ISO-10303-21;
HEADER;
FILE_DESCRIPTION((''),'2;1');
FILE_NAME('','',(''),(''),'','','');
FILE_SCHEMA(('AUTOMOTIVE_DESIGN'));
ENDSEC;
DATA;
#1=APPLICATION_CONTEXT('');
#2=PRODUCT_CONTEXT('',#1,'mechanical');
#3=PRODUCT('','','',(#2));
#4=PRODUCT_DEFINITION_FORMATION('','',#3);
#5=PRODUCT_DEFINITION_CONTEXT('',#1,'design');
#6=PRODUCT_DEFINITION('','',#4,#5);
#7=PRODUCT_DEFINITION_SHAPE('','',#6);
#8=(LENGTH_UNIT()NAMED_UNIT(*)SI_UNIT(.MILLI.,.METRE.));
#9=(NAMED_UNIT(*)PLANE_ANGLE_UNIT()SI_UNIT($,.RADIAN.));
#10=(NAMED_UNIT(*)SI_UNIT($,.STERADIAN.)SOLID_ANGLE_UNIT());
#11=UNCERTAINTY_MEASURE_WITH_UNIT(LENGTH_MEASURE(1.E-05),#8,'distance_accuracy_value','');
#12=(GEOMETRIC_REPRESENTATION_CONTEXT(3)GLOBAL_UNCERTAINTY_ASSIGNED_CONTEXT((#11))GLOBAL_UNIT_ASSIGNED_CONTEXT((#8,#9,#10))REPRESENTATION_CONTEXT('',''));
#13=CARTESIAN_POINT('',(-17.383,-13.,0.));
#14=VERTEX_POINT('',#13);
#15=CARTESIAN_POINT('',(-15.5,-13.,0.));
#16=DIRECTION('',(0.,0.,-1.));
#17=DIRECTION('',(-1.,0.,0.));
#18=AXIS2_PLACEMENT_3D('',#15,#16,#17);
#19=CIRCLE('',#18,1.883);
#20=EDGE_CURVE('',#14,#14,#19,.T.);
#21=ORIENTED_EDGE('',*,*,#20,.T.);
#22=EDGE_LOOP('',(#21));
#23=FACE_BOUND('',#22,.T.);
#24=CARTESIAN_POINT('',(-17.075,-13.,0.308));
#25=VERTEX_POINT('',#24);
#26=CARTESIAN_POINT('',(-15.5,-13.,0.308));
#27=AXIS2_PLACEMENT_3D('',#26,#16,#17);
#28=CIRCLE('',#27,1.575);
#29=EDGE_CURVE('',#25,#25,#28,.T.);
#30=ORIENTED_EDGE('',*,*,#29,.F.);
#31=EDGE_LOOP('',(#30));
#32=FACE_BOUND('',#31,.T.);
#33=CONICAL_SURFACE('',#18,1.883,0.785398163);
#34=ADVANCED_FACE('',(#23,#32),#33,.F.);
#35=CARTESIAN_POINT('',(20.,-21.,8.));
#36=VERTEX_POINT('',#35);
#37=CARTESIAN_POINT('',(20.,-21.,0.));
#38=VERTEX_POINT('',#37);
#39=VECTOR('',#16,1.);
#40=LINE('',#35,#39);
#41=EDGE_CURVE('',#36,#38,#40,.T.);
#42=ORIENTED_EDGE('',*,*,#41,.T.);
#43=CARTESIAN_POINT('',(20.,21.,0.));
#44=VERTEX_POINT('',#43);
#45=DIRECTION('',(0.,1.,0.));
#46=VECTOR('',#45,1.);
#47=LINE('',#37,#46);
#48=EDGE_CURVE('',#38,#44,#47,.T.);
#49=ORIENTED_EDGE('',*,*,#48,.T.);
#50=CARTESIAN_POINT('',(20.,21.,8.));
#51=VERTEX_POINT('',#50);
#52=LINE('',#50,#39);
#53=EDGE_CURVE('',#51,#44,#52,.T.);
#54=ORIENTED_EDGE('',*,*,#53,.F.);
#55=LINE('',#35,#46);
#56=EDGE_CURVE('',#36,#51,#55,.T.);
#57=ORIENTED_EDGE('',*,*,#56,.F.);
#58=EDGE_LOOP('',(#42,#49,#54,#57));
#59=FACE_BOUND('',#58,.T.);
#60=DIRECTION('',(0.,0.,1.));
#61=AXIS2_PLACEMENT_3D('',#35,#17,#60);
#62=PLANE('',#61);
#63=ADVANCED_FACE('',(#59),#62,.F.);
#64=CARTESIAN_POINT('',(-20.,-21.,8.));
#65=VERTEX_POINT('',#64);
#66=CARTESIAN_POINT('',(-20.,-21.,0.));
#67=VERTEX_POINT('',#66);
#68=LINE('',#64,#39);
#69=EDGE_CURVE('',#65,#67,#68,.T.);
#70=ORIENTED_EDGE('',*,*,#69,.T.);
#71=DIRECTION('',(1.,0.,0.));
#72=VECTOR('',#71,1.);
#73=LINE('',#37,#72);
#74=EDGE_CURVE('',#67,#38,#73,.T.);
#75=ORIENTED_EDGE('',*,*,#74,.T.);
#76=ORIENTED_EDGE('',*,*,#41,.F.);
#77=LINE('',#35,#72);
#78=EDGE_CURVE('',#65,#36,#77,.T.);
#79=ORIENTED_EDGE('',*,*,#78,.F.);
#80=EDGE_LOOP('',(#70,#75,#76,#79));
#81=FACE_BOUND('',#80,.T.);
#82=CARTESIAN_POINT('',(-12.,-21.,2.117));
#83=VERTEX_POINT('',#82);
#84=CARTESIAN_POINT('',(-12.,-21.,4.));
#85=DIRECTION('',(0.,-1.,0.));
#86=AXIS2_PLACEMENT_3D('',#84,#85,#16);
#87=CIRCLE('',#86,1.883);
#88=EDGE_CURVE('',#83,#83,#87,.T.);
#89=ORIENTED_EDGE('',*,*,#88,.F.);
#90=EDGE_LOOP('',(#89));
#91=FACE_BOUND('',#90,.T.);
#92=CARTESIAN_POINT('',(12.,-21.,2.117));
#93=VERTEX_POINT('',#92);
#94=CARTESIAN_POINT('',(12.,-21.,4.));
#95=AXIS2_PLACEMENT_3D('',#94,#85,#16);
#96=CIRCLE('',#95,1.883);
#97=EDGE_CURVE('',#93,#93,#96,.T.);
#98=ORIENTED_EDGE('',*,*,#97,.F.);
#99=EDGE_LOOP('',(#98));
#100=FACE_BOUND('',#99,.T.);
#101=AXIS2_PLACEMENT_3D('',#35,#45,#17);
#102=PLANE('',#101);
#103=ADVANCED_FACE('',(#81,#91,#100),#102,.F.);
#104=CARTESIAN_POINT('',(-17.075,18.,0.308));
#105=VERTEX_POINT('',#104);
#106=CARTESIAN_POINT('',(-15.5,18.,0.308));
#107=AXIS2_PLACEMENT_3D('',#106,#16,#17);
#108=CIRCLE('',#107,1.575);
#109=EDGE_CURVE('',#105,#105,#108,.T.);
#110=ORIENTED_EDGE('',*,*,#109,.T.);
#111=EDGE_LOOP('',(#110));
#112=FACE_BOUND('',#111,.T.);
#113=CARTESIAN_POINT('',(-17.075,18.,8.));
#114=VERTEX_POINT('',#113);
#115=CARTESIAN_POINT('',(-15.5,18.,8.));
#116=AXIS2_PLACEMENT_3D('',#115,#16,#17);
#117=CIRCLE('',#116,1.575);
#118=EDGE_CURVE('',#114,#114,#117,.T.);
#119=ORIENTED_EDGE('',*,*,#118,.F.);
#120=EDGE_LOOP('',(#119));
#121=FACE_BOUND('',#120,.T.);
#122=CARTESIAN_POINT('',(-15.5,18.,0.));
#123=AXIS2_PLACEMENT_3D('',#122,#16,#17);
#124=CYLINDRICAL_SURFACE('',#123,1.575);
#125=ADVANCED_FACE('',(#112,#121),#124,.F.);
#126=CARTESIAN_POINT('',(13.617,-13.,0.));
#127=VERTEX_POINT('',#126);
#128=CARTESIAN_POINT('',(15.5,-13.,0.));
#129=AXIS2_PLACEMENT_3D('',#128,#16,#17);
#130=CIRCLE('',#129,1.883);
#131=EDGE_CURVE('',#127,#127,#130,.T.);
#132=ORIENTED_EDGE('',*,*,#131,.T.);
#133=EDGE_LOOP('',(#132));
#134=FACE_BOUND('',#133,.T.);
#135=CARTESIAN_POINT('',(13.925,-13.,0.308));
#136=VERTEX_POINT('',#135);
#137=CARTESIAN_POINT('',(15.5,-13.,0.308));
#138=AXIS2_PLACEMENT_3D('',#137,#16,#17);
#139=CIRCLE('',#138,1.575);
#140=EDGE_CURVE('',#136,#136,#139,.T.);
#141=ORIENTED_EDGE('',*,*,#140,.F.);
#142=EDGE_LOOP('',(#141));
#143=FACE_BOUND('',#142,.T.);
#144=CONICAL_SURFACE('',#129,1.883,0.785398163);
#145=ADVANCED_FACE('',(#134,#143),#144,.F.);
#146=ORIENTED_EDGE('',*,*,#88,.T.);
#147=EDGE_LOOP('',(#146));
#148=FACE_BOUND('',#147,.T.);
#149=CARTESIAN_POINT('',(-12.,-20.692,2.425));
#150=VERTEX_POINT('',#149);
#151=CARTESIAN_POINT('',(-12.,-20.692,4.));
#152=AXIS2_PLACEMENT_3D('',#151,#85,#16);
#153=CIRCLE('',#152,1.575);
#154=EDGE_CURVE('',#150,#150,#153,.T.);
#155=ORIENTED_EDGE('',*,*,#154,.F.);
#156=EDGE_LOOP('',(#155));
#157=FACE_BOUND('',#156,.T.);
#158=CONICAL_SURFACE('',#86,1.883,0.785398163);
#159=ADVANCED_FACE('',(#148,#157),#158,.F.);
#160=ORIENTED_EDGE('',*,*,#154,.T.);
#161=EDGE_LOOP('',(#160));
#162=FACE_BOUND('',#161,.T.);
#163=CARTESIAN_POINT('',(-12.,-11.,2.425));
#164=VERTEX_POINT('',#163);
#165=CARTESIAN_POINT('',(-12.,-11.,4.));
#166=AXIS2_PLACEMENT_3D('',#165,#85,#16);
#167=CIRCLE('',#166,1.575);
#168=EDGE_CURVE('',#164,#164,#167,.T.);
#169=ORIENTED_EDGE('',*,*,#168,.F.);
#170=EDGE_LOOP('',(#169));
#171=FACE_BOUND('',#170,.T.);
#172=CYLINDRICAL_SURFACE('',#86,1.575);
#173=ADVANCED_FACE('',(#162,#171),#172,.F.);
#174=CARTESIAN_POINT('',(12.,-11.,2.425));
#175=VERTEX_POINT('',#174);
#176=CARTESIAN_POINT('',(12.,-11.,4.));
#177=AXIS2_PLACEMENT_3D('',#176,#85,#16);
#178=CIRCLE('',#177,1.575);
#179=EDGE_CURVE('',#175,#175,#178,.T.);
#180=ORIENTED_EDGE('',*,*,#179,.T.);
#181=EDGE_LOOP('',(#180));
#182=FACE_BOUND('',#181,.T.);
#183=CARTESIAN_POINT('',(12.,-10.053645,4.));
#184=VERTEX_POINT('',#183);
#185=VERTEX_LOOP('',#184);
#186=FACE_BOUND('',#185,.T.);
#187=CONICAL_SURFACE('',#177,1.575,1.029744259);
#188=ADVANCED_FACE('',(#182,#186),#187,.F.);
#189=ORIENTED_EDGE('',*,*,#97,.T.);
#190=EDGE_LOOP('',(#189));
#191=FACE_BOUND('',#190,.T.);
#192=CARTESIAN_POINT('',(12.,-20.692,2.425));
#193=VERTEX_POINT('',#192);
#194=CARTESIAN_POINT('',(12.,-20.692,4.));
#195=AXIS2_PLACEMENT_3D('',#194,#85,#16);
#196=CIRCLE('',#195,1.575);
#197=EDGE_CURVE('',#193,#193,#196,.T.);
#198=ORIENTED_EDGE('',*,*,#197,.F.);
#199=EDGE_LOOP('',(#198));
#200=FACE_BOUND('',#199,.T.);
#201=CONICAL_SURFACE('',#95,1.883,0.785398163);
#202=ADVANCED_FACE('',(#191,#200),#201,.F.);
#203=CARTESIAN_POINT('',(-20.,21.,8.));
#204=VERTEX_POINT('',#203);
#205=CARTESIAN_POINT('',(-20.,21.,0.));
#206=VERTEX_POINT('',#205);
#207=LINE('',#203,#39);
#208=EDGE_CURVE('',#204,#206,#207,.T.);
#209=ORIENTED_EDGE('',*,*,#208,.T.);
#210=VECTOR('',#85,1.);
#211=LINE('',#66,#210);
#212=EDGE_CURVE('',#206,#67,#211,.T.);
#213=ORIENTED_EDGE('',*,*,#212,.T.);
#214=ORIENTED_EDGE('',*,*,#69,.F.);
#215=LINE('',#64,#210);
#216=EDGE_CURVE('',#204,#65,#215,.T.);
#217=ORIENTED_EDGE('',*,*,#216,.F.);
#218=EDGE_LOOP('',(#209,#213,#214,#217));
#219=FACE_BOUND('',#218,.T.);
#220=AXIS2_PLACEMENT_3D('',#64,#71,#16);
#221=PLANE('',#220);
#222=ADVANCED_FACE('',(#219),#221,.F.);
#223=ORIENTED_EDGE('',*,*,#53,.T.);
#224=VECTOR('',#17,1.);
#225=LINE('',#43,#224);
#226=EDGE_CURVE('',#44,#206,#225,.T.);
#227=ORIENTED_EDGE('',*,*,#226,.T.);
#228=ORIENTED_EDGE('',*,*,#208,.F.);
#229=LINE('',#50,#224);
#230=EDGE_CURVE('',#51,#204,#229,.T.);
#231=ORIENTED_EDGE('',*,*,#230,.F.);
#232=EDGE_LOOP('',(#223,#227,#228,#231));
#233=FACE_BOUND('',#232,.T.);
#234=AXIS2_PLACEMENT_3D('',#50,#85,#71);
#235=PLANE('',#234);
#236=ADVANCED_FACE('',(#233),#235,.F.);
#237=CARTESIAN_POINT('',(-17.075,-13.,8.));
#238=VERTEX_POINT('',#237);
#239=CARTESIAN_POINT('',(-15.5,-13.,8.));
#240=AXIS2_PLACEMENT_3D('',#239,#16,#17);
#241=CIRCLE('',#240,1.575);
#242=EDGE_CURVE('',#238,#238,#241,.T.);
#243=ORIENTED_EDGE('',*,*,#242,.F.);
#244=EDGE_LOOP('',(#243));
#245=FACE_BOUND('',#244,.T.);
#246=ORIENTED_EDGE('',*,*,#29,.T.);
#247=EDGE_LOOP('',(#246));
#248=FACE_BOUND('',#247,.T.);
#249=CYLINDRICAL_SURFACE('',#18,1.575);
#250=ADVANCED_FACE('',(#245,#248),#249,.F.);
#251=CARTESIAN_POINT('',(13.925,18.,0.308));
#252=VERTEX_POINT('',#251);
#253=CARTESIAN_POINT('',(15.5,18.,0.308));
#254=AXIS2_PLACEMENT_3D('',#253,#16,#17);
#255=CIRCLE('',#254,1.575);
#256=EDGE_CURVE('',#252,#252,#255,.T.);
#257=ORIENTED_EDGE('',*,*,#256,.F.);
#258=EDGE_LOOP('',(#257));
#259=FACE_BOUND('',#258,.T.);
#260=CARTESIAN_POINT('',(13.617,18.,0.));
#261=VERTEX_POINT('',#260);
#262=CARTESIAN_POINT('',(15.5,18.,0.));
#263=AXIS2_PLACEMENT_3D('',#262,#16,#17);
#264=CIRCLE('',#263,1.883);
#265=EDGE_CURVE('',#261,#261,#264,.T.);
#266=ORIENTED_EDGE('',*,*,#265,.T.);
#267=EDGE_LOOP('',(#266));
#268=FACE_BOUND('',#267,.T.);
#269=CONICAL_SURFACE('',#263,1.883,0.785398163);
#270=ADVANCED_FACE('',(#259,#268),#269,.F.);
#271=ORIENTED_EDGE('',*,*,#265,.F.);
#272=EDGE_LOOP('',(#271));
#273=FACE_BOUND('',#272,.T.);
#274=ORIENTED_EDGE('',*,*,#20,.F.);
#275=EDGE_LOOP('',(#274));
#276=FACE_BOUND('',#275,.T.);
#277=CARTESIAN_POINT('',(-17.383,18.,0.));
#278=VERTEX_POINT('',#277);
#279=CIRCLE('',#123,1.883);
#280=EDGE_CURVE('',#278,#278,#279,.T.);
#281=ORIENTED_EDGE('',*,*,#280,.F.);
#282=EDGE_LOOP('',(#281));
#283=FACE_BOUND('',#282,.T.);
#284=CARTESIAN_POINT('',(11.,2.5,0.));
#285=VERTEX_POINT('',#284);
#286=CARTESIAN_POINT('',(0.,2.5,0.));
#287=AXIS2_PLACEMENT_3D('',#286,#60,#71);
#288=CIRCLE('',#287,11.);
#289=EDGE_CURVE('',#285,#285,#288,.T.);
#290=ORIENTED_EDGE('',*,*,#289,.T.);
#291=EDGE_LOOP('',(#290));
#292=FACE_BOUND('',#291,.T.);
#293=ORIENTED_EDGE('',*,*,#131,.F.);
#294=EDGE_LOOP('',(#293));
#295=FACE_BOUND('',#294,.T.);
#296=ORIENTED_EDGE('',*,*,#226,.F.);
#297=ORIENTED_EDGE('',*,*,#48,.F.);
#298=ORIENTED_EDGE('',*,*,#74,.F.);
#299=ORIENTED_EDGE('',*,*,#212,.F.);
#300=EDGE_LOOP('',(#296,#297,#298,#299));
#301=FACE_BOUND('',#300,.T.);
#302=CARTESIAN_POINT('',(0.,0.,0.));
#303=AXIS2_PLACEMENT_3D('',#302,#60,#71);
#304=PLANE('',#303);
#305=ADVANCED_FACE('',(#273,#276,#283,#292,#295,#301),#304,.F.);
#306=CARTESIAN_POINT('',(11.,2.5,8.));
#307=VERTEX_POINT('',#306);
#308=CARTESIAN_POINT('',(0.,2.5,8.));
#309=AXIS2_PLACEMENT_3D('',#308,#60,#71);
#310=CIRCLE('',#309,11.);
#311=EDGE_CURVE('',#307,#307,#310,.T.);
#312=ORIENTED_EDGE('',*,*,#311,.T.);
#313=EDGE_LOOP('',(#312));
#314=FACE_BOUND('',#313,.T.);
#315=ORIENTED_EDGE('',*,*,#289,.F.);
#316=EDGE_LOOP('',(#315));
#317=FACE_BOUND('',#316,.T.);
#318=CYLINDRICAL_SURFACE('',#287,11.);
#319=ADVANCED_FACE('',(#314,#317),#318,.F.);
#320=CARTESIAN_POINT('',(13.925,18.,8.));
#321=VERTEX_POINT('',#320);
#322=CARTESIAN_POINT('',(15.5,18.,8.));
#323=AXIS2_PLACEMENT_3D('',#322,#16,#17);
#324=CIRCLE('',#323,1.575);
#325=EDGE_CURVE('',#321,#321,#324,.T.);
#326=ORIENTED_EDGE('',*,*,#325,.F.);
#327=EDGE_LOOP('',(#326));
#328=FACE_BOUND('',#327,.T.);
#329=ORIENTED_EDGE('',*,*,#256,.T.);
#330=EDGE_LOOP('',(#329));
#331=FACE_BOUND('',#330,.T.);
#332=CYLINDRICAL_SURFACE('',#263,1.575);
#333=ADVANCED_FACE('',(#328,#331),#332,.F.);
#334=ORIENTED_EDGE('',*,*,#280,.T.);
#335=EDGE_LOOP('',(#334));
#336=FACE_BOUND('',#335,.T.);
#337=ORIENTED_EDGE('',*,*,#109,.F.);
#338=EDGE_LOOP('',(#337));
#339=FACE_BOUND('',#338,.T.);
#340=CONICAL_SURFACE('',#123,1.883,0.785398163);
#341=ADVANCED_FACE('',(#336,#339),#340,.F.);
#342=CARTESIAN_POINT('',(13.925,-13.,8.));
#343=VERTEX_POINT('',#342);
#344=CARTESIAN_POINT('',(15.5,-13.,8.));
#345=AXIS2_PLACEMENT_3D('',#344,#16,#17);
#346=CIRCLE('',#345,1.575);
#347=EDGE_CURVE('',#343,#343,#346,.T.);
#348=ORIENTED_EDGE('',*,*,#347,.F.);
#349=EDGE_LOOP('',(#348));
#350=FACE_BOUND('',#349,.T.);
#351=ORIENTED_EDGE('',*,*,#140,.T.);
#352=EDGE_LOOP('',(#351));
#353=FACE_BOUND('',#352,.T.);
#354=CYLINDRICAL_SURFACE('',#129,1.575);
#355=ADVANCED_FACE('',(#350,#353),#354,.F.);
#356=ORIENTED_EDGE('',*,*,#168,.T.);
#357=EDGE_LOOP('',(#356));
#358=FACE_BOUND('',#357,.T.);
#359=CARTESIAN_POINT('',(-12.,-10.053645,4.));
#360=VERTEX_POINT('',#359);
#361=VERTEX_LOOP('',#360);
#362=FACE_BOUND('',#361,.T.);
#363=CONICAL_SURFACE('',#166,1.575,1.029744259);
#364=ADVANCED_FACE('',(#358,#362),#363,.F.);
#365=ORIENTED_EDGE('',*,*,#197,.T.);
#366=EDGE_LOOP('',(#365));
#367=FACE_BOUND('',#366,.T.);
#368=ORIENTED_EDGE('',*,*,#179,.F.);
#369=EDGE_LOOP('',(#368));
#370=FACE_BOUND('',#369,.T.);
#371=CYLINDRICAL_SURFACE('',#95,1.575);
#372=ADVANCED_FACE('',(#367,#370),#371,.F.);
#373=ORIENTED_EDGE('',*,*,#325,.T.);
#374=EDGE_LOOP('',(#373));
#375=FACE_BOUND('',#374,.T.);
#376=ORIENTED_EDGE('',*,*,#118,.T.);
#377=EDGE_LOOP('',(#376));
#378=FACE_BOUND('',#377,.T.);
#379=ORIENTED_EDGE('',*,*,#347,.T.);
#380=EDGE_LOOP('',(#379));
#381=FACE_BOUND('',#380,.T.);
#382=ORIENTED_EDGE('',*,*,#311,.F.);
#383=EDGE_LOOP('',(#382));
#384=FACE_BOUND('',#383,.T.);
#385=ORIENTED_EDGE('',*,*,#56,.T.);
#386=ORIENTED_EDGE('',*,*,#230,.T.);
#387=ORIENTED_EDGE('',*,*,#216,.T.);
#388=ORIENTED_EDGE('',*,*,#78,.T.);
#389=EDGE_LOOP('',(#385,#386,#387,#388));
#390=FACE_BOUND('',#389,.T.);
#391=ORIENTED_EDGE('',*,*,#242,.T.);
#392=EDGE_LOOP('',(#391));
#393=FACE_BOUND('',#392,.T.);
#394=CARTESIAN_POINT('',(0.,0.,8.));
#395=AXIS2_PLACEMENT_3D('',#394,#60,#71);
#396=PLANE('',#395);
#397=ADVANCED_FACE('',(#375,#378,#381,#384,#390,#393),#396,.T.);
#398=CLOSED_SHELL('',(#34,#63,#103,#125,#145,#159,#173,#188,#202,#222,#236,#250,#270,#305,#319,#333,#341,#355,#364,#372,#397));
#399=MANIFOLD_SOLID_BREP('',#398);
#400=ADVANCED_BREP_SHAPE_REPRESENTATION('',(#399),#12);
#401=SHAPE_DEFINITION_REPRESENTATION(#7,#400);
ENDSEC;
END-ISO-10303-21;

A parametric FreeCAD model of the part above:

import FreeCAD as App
import Part
import Sketcher
from FreeCAD import Vector
Q = App.Units.Quantity


def add_polygon(sketch, points):
    """Adds a closed chain of lines whose ends are joined by coincident constraints."""
    first, n = sketch.GeometryCount, len(points)
    for a, b in zip(points, points[1:] + points[:1]):
        sketch.addGeometry(Part.LineSegment(App.Vector(*a, 0), App.Vector(*b, 0)), False)
    for i in range(n):
        sketch.addConstraint(Sketcher.Constraint("Coincident", first + i, 2, first + (i + 1) % n, 1))

doc = App.newDocument("Part")
params = doc.addObject("Spreadsheet::Sheet", "Params")
for row, (alias, value) in enumerate([
    ("sketch1_width", "40 mm"),
    ("sketch1_height", "42 mm"),
    ("pad1_length", "8 mm"),
    ("sketch2_diameter", "22 mm"),
    ("sketch3_diameter", "3.15 mm"),
    ("hole_diameter", "3.15 mm"),
    ("hole_depth", "10 mm"),
    ("hole_csink_diameter", "3.766 mm"),
    ("sketch4_diameter", "3.15 mm"),
    ("hole2_diameter", "3.15 mm"),
    ("hole2_csink_diameter", "3.766 mm"),
], start=1):
    params.set(f"A{row}", alias)
    params.set(f"B{row}", "=" + value)
    params.setAlias(f"B{row}", alias)

body = doc.addObject("PartDesign::Body", "Body")

sketch1 = doc.addObject("Sketcher::SketchObject", "Sketch")
body.addObject(sketch1)
sketch1.AttachmentSupport = (doc.XY_Plane, [""])
sketch1.MapMode = "FlatFace"
add_polygon(sketch1, [(-20, 21), (-20, -21), (20, -21), (20, 21)])
sketch1.addConstraint(Sketcher.Constraint("Vertical", 0))
sketch1.addConstraint(Sketcher.Constraint("Horizontal", 1))
sketch1.addConstraint(Sketcher.Constraint("Vertical", 2))
sketch1.addConstraint(Sketcher.Constraint("Horizontal", 3))
sketch1.addConstraint(Sketcher.Constraint("Symmetric", 0, 2, 2, 2, -1, 1))
sketch1.addConstraint(Sketcher.Constraint("DistanceX", 1, 1, 1, 2, Q("40 mm")))
sketch1.addConstraint(Sketcher.Constraint("DistanceY", 0, 2, 0, 1, Q("42 mm")))
sketch1.setExpression("Constraints[9]", "Params.sketch1_width")
sketch1.setExpression("Constraints[10]", "Params.sketch1_height")
pad1 = doc.addObject("PartDesign::Pad", "Pad")
body.addObject(pad1)
pad1.Profile = sketch1
pad1.setExpression("Length", "Params.pad1_length")

sketch2 = doc.addObject("Sketcher::SketchObject", "Sketch001")
body.addObject(sketch2)
sketch2.AttachmentSupport = (doc.XY_Plane, [""])
sketch2.MapMode = "FlatFace"
sketch2.AttachmentOffset = App.Placement(Vector(0, 0, 8), App.Rotation())
sketch2.addGeometry(Part.Circle(Vector(0, 2.5, 0), Vector(0, 0, 1), 11), False)
sketch2.addConstraint(Sketcher.Constraint("PointOnObject", 0, 3, -2))
sketch2.addConstraint(Sketcher.Constraint("Diameter", 0, Q("22 mm")))
sketch2.addConstraint(Sketcher.Constraint("DistanceY", -1, 1, 0, 3, Q("2.5 mm")))
sketch2.setExpression("Constraints[1]", "Params.sketch2_diameter")
pocket1 = doc.addObject("PartDesign::Pocket", "Pocket")
body.addObject(pocket1)
pocket1.Profile = sketch2
pocket1.Type = "ThroughAll"

sketch3 = doc.addObject("Sketcher::SketchObject", "Sketch002")
body.addObject(sketch3)
sketch3.AttachmentSupport = (doc.XZ_Plane, [""])
sketch3.MapMode = "FlatFace"
sketch3.AttachmentOffset = App.Placement(Vector(0, 0, 21), App.Rotation())
sketch3.addGeometry(Part.Circle(Vector(12, 4, 0), Vector(0, 0, 1), 1.575), False)
sketch3.addGeometry(Part.Circle(Vector(-12, 4, 0), Vector(0, 0, 1), 1.575), False)
sketch3.addConstraint(Sketcher.Constraint("Equal", 0, 1))
sketch3.addConstraint(Sketcher.Constraint("Symmetric", 0, 3, 1, 3, -2))
sketch3.addConstraint(Sketcher.Constraint("Diameter", 0, Q("3.15 mm")))
sketch3.addConstraint(Sketcher.Constraint("DistanceX", -1, 1, 0, 3, Q("12 mm")))
sketch3.addConstraint(Sketcher.Constraint("DistanceY", -1, 1, 0, 3, Q("4 mm")))
sketch3.setExpression("Constraints[2]", "Params.sketch3_diameter")
doc.recompute()
hole = doc.addObject("PartDesign::Hole", "Hole")
body.addObject(hole)
hole.Profile = sketch3
hole.ThreadType = "None"
hole.setExpression("Diameter", "Params.hole_diameter")
hole.DepthType = "Dimension"
hole.setExpression("Depth", "Params.hole_depth")
hole.DrillPoint = "Angled"
hole.DrillPointAngle = 118
hole.HoleCutType = "Countersink"
hole.setExpression("HoleCutDiameter", "Params.hole_csink_diameter")
hole.HoleCutCountersinkAngle = 90

sketch4 = doc.addObject("Sketcher::SketchObject", "Sketch003")
body.addObject(sketch4)
sketch4.AttachmentSupport = (doc.XY_Plane, [""])
sketch4.MapMode = "FlatFace"
sketch4.addGeometry(Part.Circle(Vector(15.5, 18, 0), Vector(0, 0, 1), 1.575), False)
sketch4.addGeometry(Part.Circle(Vector(-15.5, 18, 0), Vector(0, 0, 1), 1.575), False)
sketch4.addGeometry(Part.Circle(Vector(15.5, -13, 0), Vector(0, 0, 1), 1.575), False)
sketch4.addGeometry(Part.Circle(Vector(-15.5, -13, 0), Vector(0, 0, 1), 1.575), False)
sketch4.addConstraint(Sketcher.Constraint("Equal", 0, 1))
sketch4.addConstraint(Sketcher.Constraint("Equal", 1, 2))
sketch4.addConstraint(Sketcher.Constraint("Equal", 2, 3))
sketch4.addConstraint(Sketcher.Constraint("Symmetric", 0, 3, 1, 3, -2))
sketch4.addConstraint(Sketcher.Constraint("Symmetric", 2, 3, 3, 3, -2))
sketch4.addConstraint(Sketcher.Constraint("Vertical", 0, 3, 2, 3))
sketch4.addConstraint(Sketcher.Constraint("Diameter", 0, Q("3.15 mm")))
sketch4.addConstraint(Sketcher.Constraint("DistanceY", -1, 1, 0, 3, Q("18 mm")))
sketch4.addConstraint(Sketcher.Constraint("DistanceY", 2, 3, -1, 1, Q("13 mm")))
sketch4.addConstraint(Sketcher.Constraint("DistanceX", 1, 3, 0, 3, Q("31 mm")))
sketch4.setExpression("Constraints[6]", "Params.sketch4_diameter")
doc.recompute()
hole2 = doc.addObject("PartDesign::Hole", "Hole001")
body.addObject(hole2)
hole2.Profile = sketch4
hole2.ThreadType = "None"
hole2.setExpression("Diameter", "Params.hole2_diameter")
hole2.DepthType = "ThroughAll"
hole2.HoleCutType = "Countersink"
hole2.setExpression("HoleCutDiameter", "Params.hole2_csink_diameter")
hole2.HoleCutCountersinkAngle = 90
hole2.Reversed = True

doc.recompute()
